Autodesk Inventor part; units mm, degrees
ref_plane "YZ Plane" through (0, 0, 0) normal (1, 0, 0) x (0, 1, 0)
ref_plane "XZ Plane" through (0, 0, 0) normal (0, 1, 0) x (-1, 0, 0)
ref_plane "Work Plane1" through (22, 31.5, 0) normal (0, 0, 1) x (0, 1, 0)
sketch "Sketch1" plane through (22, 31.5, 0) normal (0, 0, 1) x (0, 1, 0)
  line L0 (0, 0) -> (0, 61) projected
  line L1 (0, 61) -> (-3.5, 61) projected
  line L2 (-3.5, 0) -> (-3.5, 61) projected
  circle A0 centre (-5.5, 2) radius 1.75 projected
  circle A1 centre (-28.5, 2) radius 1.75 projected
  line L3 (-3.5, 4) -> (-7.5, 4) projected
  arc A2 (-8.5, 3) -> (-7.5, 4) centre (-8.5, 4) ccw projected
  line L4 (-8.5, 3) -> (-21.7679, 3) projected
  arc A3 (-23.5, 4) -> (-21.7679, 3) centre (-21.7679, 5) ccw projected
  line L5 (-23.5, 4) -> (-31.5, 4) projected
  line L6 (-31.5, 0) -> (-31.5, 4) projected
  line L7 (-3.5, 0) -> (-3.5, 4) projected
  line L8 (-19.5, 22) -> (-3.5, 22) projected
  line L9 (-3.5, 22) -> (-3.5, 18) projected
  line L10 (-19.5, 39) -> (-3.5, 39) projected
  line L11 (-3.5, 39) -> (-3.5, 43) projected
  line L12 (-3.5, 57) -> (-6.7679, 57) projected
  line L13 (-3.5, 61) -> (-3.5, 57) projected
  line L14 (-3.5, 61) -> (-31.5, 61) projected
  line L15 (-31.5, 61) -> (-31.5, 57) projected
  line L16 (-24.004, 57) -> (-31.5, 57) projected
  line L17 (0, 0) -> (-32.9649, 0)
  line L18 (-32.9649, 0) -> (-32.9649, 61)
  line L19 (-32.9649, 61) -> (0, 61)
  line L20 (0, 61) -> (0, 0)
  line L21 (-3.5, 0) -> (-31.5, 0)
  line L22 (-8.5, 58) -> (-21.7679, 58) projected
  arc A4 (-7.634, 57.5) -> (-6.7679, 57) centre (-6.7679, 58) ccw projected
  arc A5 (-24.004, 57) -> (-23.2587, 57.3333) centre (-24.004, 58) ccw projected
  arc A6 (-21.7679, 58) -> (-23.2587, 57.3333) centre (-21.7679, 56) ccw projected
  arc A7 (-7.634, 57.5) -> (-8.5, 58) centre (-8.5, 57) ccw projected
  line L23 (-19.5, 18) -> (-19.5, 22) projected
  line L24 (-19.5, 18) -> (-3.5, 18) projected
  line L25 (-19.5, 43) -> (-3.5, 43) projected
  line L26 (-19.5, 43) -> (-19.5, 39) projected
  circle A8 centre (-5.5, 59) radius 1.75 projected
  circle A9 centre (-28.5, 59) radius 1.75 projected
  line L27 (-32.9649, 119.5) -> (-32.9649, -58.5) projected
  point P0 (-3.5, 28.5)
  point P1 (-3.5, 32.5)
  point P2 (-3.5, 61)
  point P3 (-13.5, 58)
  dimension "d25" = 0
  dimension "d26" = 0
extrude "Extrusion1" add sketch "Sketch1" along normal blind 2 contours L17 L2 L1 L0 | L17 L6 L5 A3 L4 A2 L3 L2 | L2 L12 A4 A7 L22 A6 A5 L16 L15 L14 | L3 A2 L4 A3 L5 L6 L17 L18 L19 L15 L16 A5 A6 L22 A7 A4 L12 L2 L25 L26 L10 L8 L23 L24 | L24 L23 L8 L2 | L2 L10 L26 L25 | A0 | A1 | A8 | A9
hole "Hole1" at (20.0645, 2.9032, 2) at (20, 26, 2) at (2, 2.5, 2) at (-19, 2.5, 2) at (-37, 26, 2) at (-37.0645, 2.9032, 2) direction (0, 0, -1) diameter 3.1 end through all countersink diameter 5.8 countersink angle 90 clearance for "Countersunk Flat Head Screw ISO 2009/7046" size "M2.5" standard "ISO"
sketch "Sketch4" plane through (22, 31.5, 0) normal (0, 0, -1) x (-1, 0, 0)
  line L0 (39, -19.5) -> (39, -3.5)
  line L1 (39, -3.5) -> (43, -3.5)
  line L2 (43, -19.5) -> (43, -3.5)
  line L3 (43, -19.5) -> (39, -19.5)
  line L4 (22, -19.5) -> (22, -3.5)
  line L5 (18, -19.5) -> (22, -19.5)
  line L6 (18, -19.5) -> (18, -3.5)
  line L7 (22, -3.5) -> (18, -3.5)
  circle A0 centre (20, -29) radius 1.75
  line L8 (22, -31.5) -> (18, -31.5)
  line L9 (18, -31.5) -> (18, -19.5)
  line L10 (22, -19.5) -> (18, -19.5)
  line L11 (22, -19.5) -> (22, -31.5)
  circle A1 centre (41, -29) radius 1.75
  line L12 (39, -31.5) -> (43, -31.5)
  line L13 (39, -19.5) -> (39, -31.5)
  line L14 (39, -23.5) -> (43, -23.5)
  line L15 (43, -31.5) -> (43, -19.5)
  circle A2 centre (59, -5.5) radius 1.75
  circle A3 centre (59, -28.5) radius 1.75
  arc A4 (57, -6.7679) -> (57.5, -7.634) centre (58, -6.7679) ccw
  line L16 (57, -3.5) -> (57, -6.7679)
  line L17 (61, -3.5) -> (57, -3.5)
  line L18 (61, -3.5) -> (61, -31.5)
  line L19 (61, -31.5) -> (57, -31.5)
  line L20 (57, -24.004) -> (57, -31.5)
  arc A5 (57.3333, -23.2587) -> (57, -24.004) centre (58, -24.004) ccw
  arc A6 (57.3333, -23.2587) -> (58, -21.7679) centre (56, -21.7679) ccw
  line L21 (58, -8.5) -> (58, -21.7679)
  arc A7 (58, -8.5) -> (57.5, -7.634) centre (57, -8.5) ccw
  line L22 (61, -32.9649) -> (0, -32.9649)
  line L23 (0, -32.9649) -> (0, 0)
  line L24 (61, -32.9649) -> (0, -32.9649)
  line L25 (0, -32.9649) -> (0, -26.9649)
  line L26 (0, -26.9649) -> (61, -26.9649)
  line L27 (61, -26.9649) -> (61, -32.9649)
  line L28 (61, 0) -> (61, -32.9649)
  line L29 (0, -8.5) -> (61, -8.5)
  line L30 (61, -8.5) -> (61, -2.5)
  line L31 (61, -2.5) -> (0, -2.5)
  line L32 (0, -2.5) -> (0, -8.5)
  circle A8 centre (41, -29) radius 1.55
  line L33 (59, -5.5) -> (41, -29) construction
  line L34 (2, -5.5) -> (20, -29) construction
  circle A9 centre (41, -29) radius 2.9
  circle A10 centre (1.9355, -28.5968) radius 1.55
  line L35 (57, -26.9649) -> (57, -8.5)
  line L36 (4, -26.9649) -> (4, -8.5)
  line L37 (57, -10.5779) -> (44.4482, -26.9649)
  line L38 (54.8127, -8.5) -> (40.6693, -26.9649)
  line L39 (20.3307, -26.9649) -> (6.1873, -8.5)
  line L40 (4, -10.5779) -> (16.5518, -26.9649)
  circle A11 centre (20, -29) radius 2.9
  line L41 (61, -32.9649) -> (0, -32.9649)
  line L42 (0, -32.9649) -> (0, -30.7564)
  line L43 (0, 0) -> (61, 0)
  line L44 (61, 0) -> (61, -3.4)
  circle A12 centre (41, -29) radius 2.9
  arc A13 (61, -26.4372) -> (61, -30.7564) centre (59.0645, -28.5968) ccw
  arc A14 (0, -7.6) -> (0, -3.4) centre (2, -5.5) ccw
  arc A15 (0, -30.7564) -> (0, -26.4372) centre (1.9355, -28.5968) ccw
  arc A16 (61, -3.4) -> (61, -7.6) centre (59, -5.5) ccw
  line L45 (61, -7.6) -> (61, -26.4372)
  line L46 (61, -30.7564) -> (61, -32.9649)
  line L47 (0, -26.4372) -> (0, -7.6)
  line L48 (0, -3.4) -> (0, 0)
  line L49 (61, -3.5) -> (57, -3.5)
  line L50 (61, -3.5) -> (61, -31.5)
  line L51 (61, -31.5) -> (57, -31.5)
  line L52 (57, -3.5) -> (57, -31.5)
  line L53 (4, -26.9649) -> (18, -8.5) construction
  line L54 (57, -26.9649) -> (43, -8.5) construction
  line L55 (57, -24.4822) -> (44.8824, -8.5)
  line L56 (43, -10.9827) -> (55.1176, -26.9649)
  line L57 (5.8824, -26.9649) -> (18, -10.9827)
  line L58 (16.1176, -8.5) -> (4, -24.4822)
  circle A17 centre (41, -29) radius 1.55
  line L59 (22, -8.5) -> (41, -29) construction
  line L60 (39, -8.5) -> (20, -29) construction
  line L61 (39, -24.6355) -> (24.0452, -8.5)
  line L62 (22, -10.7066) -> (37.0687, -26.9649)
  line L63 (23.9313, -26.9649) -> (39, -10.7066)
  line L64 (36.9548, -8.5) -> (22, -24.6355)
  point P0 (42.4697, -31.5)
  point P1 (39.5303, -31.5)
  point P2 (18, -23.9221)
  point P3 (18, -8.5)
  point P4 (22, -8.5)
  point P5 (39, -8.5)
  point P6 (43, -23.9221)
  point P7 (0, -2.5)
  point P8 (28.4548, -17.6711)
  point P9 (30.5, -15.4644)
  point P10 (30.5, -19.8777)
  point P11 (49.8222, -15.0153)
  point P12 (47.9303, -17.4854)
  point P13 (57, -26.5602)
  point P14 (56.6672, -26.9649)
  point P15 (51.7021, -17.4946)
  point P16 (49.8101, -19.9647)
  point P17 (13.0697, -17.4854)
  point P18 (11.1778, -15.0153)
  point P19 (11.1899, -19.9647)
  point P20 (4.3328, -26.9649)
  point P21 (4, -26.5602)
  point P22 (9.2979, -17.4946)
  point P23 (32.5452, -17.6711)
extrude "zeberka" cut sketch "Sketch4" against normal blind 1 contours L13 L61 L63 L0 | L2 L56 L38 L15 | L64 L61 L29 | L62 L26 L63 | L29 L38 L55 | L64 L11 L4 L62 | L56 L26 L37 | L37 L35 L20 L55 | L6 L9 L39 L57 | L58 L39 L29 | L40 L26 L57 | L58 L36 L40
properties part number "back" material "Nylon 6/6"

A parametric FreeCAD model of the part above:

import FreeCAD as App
import Part
import Sketcher

V = App.Vector
Q = App.Units.Quantity

doc = App.newDocument("Part")
body = doc.addObject("PartDesign::Body", "Body")

# Sketch on XY plane
sketch1 = doc.addObject("Sketcher::SketchObject", "Sketch")
body.addObject(sketch1)
sketch1.AttachmentSupport = (doc.XY_Plane, [""])
sketch1.MapMode = "FlatFace"
sketch1.addGeometry([
    Part.LineSegment(V(22, 32, 0), V(-39, 32, 0)),
    Part.LineSegment(V(-39, 32, 0), V(-39, -1, 0)),
    Part.LineSegment(V(-39, -1, 0), V(22, -1, 0)),
    Part.LineSegment(V(22, -1, 0), V(22, 32, 0)),
], False)
sketch1.addConstraint([
    Sketcher.Constraint("Coincident", 0, 2, 1, 1),
    Sketcher.Constraint("Coincident", 1, 2, 2, 1),
    Sketcher.Constraint("Coincident", 2, 2, 3, 1),
    Sketcher.Constraint("Coincident", 3, 2, 0, 1),
    Sketcher.Constraint("Horizontal", 0),
    Sketcher.Constraint("Vertical", 1),
    Sketcher.Constraint("Horizontal", 2),
    Sketcher.Constraint("Vertical", 3),
    Sketcher.Constraint("DistanceX", 0, 2, 0, 1, 61.0),
    Sketcher.Constraint("DistanceX", 0, 2, -1, 1, 39.0),
    Sketcher.Constraint("DistanceY", -1, 1, 0, 2, 31.5),
    Sketcher.Constraint("DistanceY", 1, 2, 1, 1, 32.965),
])
pad1 = doc.addObject("PartDesign::Pad", "Pad")
body.addObject(pad1)
pad1.Profile = sketch1
pad1.Length = 2

# Sketch on XY plane
sketch2 = doc.addObject("Sketcher::SketchObject", "Sketch001")
body.addObject(sketch2)
sketch2.AttachmentSupport = (doc.XY_Plane, [""])
sketch2.MapMode = "FlatFace"
sketch2.AttachmentOffset = App.Placement(V(0, 0, 2), App.Rotation())
sketch2.addGeometry([
    Part.Circle(V(20.1, 2.9, 0), V(0, 0, 1), 1.6),  # 0
    Part.Circle(V(20, 26, 0), V(0, 0, 1), 1.6),  # 1
    Part.Circle(V(2, 2.5, 0), V(0, 0, 1), 1.6),  # 2
    Part.Circle(V(-19, 2.5, 0), V(0, 0, 1), 1.6),  # 3
    Part.Circle(V(-37, 26, 0), V(0, 0, 1), 1.6),  # 4
    Part.Circle(V(-37.1, 2.9, 0), V(0, 0, 1), 1.6),  # 5
], False)
sketch2.addConstraint([
    Sketcher.Constraint("Equal", 0, 1),
    Sketcher.Constraint("Equal", 1, 2),
    Sketcher.Constraint("Equal", 2, 3),
    Sketcher.Constraint("Equal", 3, 4),
    Sketcher.Constraint("Equal", 4, 5),
    Sketcher.Constraint("Horizontal", 2, 3, 3, 3),
    Sketcher.Constraint("Horizontal", 1, 3, 4, 3),
    Sketcher.Constraint("Horizontal", 0, 3, 5, 3),
    Sketcher.Constraint("Diameter", 0, 3.1),
    Sketcher.Constraint("DistanceX", -1, 1, 1, 3, 20.0),
    Sketcher.Constraint("DistanceY", -1, 1, 1, 3, 26.0),
    Sketcher.Constraint("DistanceX", -1, 1, 2, 3, 2.0),
    Sketcher.Constraint("DistanceX", 3, 3, -1, 1, 19.0),
    Sketcher.Constraint("DistanceX", 4, 3, -1, 1, 37.0),
    Sketcher.Constraint("DistanceY", -1, 1, 2, 3, 2.5),
    Sketcher.Constraint("DistanceX", 5, 3, 0, 3, 57.129),
    Sketcher.Constraint("DistanceX", -1, 1, 0, 3, 20.0645),
    Sketcher.Constraint("DistanceY", -1, 1, 0, 3, 2.9032),
])
doc.recompute()
hole = doc.addObject("PartDesign::Hole", "Hole")
body.addObject(hole)
hole.Profile = sketch2
hole.ThreadType = "None"
hole.Diameter = 3.1
hole.DepthType = "ThroughAll"
hole.HoleCutType = "Countersink"
hole.HoleCutDiameter = 5.8
hole.HoleCutCountersinkAngle = 90

# Sketch on XY plane
sketch3 = doc.addObject("Sketcher::SketchObject", "Sketch002")
body.addObject(sketch3)
sketch3.AttachmentSupport = (doc.XY_Plane, [""])
sketch3.MapMode = "FlatFace"
sketch3.addGeometry([
    Part.LineSegment(V(-17, 7, 0), V(-17, 21, 0)),  # 0
    Part.LineSegment(V(-17, 21, 0), V(-11, 14, 0)),  # 1
    Part.LineSegment(V(-11, 14, 0), V(-17, 7, 0)),  # 2
    Part.LineSegment(V(-21, 21, 0), V(-21, 8, 0)),  # 3
    Part.LineSegment(V(-21, 8, 0), V(-26, 14, 0)),  # 4
    Part.LineSegment(V(-26, 14, 0), V(-21, 21, 0)),  # 5
    Part.LineSegment(V(-8, 16, 0), V(-15, 23, 0)),  # 6
    Part.LineSegment(V(-15, 23, 0), V(-2, 23, 0)),  # 7
    Part.LineSegment(V(-2, 23, 0), V(-8, 16, 0)),  # 8
    Part.LineSegment(V(-15, 5, 0), V(-8, 12, 0)),  # 9
    Part.LineSegment(V(-8, 12, 0), V(-2, 5, 0)),  # 10
    Part.LineSegment(V(-2, 5, 0), V(-15, 5, 0)),  # 11
    Part.LineSegment(V(-33, 23, 0), V(-23, 23, 0)),  # 12
    Part.LineSegment(V(-23, 23, 0), V(-28, 16, 0)),  # 13
    Part.LineSegment(V(-28, 16, 0), V(-33, 23, 0)),  # 14
    Part.LineSegment(V(0, 7, 0), V(-6, 14, 0)),  # 15
    Part.LineSegment(V(-6, 14, 0), V(0, 21, 0)),  # 16
    Part.LineSegment(V(0, 21, 0), V(0, 7, 0)),  # 17
    Part.LineSegment(V(-33, 5, 0), V(-28, 12, 0)),  # 18
    Part.LineSegment(V(-28, 12, 0), V(-22, 5, 0)),  # 19
    Part.LineSegment(V(-22, 5, 0), V(-33, 5, 0)),  # 20
    Part.LineSegment(V(-35, 21, 0), V(-30, 14, 0)),  # 21
    Part.LineSegment(V(-30, 14, 0), V(-35, 7, 0)),  # 22
    Part.LineSegment(V(-35, 7, 0), V(-35, 21, 0)),  # 23
    Part.LineSegment(V(4, 8, 0), V(4, 21, 0)),  # 24
    Part.LineSegment(V(4, 21, 0), V(9, 14, 0)),  # 25
    Part.LineSegment(V(9, 14, 0), V(4, 8, 0)),  # 26
    Part.LineSegment(V(11, 16, 0), V(6, 23, 0)),  # 27
    Part.LineSegment(V(6, 23, 0), V(16, 23, 0)),  # 28
    Part.LineSegment(V(16, 23, 0), V(11, 16, 0)),  # 29
    Part.LineSegment(V(5, 5, 0), V(11, 12, 0)),  # 30
    Part.LineSegment(V(11, 12, 0), V(16, 5, 0)),  # 31
    Part.LineSegment(V(16, 5, 0), V(5, 5, 0)),  # 32
    Part.LineSegment(V(18, 7, 0), V(13, 14, 0)),  # 33
    Part.LineSegment(V(13, 14, 0), V(18, 21, 0)),  # 34
    Part.LineSegment(V(18, 21, 0), V(18, 7, 0)),  # 35
], False)
sketch3.addConstraint([
    Sketcher.Constraint("Coincident", 0, 2, 1, 1),
    Sketcher.Constraint("Coincident", 1, 2, 2, 1),
    Sketcher.Constraint("Coincident", 2, 2, 0, 1),
    Sketcher.Constraint("Coincident", 3, 2, 4, 1),
    Sketcher.Constraint("Coincident", 4, 2, 5, 1),
    Sketcher.Constraint("Coincident", 5, 2, 3, 1),
    Sketcher.Constraint("Coincident", 6, 2, 7, 1),
    Sketcher.Constraint("Coincident", 7, 2, 8, 1),
    Sketcher.Constraint("Coincident", 8, 2, 6, 1),
    Sketcher.Constraint("Coincident", 9, 2, 10, 1),
    Sketcher.Constraint("Coincident", 10, 2, 11, 1),
    Sketcher.Constraint("Coincident", 11, 2, 9, 1),
    Sketcher.Constraint("Coincident", 12, 2, 13, 1),
    Sketcher.Constraint("Coincident", 13, 2, 14, 1),
    Sketcher.Constraint("Coincident", 14, 2, 12, 1),
    Sketcher.Constraint("Coincident", 15, 2, 16, 1),
    Sketcher.Constraint("Coincident", 16, 2, 17, 1),
    Sketcher.Constraint("Coincident", 17, 2, 15, 1),
    Sketcher.Constraint("Coincident", 18, 2, 19, 1),
    Sketcher.Constraint("Coincident", 19, 2, 20, 1),
    Sketcher.Constraint("Coincident", 20, 2, 18, 1),
    Sketcher.Constraint("Coincident", 21, 2, 22, 1),
    Sketcher.Constraint("Coincident", 22, 2, 23, 1),
    Sketcher.Constraint("Coincident", 23, 2, 21, 1),
    Sketcher.Constraint("Coincident", 24, 2, 25, 1),
    Sketcher.Constraint("Coincident", 25, 2, 26, 1),
    Sketcher.Constraint("Coincident", 26, 2, 24, 1),
    Sketcher.Constraint("Coincident", 27, 2, 28, 1),
    Sketcher.Constraint("Coincident", 28, 2, 29, 1),
    Sketcher.Constraint("Coincident", 29, 2, 27, 1),
    Sketcher.Constraint("Coincident", 30, 2, 31, 1),
    Sketcher.Constraint("Coincident", 31, 2, 32, 1),
    Sketcher.Constraint("Coincident", 32, 2, 30, 1),
    Sketcher.Constraint("Coincident", 33, 2, 34, 1),
    Sketcher.Constraint("Coincident", 34, 2, 35, 1),
    Sketcher.Constraint("Coincident", 35, 2, 33, 1),
    Sketcher.Constraint("Vertical", 0),
    Sketcher.Constraint("Vertical", 3),
    Sketcher.Constraint("Horizontal", 7),
    Sketcher.Constraint("Horizontal", 11),
    Sketcher.Constraint("Horizontal", 12),
    Sketcher.Constraint("Vertical", 17),
    Sketcher.Constraint("Horizontal", 20),
    Sketcher.Constraint("Vertical", 23),
    Sketcher.Constraint("Vertical", 24),
    Sketcher.Constraint("Horizontal", 28),
    Sketcher.Constraint("Horizontal", 32),
    Sketcher.Constraint("Vertical", 35),
    Sketcher.Constraint("PointOnObject", 16, 2, -2),
    Sketcher.Constraint("Parallel", 1, 6),
    Sketcher.Constraint("Parallel", 2, 8),
    Sketcher.Constraint("Parallel", 8, 9),
    Sketcher.Constraint("Parallel", 6, 10),
    Sketcher.Constraint("Parallel", 5, 13),
    Sketcher.Constraint("Parallel", 4, 14),
    Sketcher.Constraint("Parallel", 10, 15),
    Sketcher.Constraint("Parallel", 9, 16),
    Sketcher.Constraint("Parallel", 13, 18),
    Sketcher.Constraint("Parallel", 14, 19),
    Sketcher.Constraint("Parallel", 19, 21),
    Sketcher.Constraint("Parallel", 18, 22),
    Sketcher.Constraint("Parallel", 25, 27),
    Sketcher.Constraint("Parallel", 26, 29),
    Sketcher.Constraint("Parallel", 29, 30),
    Sketcher.Constraint("Parallel", 27, 31),
    Sketcher.Constraint("Parallel", 31, 33),
    Sketcher.Constraint("Parallel", 30, 34),
    Sketcher.Constraint("Horizontal", 7, 2, 12, 2),
    Sketcher.Constraint("Horizontal", 1, 2, 15, 2),
    Sketcher.Constraint("Horizontal", 0, 2, 16, 2),
    Sketcher.Constraint("Horizontal", 2, 2, 17, 2),
    Sketcher.Constraint("Horizontal", 11, 2, 19, 2),
    Sketcher.Constraint("Horizontal", 5, 2, 24, 2),
    Sketcher.Constraint("Horizontal", 4, 2, 25, 2),
    Sketcher.Constraint("Horizontal", 3, 2, 26, 2),
    Sketcher.Constraint("Horizontal", 14, 2, 27, 2),
    Sketcher.Constraint("Horizontal", 13, 2, 29, 2),
    Sketcher.Constraint("Horizontal", 18, 2, 30, 2),
    Sketcher.Constraint("Horizontal", 20, 2, 31, 2),
    Sketcher.Constraint("Horizontal", 21, 2, 33, 2),
    Sketcher.Constraint("Horizontal", 23, 2, 34, 2),
    Sketcher.Constraint("Vertical", 8, 2, 9, 2),
    Sketcher.Constraint("Equal", 12, 28),
    Sketcher.Constraint("Equal", 2, 6),
    Sketcher.Constraint("DistanceX", 0, 2, -1, 1, 17.0),
    Sketcher.Constraint("DistanceX", 3, 2, -1, 1, 21.0),
    Sketcher.Constraint("DistanceY", -1, 1, 6, 2, 23.0),
    Sketcher.Constraint("DistanceX", 22, 2, -1, 1, 35.0),
    Sketcher.Constraint("DistanceX", -1, 1, 24, 2, 4.0),
    Sketcher.Constraint("DistanceX", -1, 1, 34, 2, 18.0),
    Sketcher.Constraint("DistanceX", 8, 2, -1, 1, 8.5),
    Sketcher.Constraint("Angle", 4, Q("127.4507 deg")),
    Sketcher.Constraint("Angle", 5, Q("52.8308 deg")),
    Sketcher.Constraint("DistanceY", 0, 1, 0, 2, 13.929),
    Sketcher.Constraint("DistanceX", 18, 2, -1, 1, 27.81),
    Sketcher.Constraint("DistanceX", -1, 1, 30, 2, 10.81),
    Sketcher.Constraint("DistanceY", 4, 2, 13, 2, 2.47),
    Sketcher.Constraint("DistanceY", 18, 2, 21, 2, 2.47),
    Sketcher.Constraint("Distance", 4, 8.108),
    Sketcher.Constraint("Distance", 14, 8.207),
    Sketcher.Constraint("Distance", 22, 8.769),
    Sketcher.Constraint("DistanceX", 7, 1, 7, 2, 12.9096),
    Sketcher.Constraint("DistanceX", 11, 2, 11, 1, 13.1374),
    Sketcher.Constraint("DistanceX", 20, 2, 20, 1, 10.6694),
    Sketcher.Constraint("DistanceY", -1, 1, 1, 2, 13.829),
    Sketcher.Constraint("DistanceY", -1, 1, 10, 2, 4.535),
    Sketcher.Constraint("DistanceX", 13, 2, 4, 2, 1.892),
    Sketcher.Constraint("DistanceX", 7, 2, 28, 2, 17.858),
])
pocket1 = doc.addObject("PartDesign::Pocket", "Pocket")
body.addObject(pocket1)
pocket1.Profile = sketch3
pocket1.Length = 1
pocket1.Reversed = True

doc.recompute()
